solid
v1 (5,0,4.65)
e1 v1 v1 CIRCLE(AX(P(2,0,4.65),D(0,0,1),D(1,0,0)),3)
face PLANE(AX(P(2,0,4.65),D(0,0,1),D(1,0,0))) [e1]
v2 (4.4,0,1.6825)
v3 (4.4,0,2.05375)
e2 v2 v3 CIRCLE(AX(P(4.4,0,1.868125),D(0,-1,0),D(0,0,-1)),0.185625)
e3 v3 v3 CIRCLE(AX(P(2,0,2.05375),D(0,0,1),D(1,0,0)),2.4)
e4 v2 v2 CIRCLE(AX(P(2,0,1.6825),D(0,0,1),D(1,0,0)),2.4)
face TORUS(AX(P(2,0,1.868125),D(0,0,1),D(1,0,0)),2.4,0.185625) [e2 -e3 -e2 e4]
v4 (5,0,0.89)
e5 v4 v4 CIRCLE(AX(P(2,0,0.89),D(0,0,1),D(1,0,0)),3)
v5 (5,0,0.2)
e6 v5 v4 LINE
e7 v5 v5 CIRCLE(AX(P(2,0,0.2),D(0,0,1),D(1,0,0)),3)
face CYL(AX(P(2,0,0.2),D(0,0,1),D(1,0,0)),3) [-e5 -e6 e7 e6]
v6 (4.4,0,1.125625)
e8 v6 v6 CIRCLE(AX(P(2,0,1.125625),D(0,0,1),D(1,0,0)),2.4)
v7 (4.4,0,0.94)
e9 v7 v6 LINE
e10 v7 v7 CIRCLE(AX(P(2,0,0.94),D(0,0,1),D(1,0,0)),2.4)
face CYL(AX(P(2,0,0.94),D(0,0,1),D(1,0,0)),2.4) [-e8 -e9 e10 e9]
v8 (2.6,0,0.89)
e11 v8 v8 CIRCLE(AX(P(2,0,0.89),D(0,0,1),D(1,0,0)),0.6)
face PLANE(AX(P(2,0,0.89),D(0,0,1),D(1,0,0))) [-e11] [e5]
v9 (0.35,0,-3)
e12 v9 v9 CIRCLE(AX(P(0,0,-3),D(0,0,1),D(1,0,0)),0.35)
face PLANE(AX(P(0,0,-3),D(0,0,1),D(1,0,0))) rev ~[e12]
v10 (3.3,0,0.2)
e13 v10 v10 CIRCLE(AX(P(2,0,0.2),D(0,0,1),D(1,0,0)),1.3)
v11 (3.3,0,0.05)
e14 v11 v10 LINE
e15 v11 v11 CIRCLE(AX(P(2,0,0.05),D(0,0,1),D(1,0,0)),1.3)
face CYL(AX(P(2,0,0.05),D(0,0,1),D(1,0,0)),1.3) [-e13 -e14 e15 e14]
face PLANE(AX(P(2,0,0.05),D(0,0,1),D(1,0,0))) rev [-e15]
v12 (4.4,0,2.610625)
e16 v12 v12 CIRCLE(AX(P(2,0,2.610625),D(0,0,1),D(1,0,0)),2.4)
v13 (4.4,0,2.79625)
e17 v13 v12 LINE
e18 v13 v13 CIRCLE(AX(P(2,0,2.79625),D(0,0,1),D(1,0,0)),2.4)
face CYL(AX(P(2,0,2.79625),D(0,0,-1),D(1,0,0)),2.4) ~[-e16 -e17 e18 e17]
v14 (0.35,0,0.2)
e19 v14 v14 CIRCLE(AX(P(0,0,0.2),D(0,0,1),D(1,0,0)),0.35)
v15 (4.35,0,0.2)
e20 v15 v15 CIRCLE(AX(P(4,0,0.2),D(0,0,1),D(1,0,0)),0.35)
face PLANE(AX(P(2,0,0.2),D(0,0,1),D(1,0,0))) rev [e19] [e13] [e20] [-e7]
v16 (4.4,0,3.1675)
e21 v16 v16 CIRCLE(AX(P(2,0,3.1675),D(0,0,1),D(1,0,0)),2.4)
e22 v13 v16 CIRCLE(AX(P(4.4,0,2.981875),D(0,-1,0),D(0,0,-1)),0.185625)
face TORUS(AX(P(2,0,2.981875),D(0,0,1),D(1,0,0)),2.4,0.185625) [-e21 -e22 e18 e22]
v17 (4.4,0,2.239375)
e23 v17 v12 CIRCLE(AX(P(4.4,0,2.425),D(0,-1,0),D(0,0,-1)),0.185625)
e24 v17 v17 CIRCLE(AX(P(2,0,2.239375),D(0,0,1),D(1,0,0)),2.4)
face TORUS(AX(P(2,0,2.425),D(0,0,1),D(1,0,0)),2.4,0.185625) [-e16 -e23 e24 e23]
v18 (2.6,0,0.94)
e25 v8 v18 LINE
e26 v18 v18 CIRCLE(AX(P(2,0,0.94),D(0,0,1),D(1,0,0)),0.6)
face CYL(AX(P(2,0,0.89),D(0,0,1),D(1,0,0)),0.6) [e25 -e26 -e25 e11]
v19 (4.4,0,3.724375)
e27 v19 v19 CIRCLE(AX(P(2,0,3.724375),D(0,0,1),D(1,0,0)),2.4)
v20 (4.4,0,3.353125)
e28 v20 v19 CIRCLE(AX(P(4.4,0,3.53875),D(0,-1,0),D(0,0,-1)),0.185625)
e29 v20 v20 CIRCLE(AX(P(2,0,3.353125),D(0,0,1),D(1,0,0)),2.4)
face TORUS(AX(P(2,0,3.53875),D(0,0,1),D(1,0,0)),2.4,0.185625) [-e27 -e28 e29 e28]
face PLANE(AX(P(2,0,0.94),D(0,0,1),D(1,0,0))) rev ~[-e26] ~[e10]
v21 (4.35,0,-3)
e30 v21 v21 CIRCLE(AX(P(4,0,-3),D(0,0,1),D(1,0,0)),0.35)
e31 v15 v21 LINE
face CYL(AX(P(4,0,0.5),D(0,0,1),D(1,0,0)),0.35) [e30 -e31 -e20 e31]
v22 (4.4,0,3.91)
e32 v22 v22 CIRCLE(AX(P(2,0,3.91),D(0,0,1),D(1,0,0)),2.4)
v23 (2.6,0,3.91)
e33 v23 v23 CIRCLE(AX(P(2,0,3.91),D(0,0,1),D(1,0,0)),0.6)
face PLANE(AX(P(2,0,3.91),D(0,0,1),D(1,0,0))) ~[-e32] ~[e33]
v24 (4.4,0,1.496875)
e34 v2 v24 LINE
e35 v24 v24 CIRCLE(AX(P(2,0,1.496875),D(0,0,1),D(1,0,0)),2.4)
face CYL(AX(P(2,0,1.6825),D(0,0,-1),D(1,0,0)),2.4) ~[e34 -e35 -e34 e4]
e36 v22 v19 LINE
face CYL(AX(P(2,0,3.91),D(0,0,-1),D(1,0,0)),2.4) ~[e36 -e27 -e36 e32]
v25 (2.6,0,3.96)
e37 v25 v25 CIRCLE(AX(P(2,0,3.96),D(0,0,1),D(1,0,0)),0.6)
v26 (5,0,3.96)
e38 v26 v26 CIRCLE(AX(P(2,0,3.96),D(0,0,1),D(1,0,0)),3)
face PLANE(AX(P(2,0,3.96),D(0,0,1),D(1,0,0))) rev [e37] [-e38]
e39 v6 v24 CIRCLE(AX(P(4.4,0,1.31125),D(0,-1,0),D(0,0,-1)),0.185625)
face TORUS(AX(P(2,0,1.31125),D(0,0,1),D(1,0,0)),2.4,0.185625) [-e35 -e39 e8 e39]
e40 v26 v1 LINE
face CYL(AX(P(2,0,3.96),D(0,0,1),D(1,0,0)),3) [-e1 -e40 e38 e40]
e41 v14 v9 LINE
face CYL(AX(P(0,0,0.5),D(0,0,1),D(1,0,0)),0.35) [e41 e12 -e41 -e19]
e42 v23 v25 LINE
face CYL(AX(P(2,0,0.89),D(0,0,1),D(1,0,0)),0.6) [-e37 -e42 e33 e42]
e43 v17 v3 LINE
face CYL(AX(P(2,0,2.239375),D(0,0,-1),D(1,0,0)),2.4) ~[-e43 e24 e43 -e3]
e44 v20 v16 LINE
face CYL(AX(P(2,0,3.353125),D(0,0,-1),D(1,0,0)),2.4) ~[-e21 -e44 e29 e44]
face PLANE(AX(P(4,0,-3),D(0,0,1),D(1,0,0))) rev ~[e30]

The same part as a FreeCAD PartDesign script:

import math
import FreeCAD as App
import Part
import Sketcher
Q = App.Units.Quantity


def add_polygon(sketch, points):
    """Adds a closed chain of lines whose ends are joined by coincident constraints."""
    first, n = sketch.GeometryCount, len(points)
    for a, b in zip(points, points[1:] + points[:1]):
        sketch.addGeometry(Part.LineSegment(App.Vector(*a, 0), App.Vector(*b, 0)), False)
    for i in range(n):
        sketch.addConstraint(Sketcher.Constraint("Coincident", first + i, 2, first + (i + 1) % n, 1))

doc = App.newDocument("Part")
params = doc.addObject("Spreadsheet::Sheet", "Params")
for row, (alias, value) in enumerate([
    ("sketch1_width", "3 mm"),
    ("sketch1_width2", "1.3 mm"),
    ("sketch1_width3", "2.4 mm"),
    ("sketch1_height", "4.6 mm"),
    ("sketch1_height2", "0.15 mm"),
    ("revolution_angle", "360 deg"),
    ("sketch2_diameter", "0.7 mm"),
    ("pad1_length", "3.5 mm"),
    ("sketch3_width", "1.8 mm"),
    ("sketch3_height", "2.97 mm"),
    ("revolution2_angle", "360 deg"),
], start=1):
    params.set(f"A{row}", alias)
    params.set(f"B{row}", "=" + value)
    params.setAlias(f"B{row}", alias)

body = doc.addObject("PartDesign::Body", "Body")

sketch1 = body.newObject("Sketcher::SketchObject", "Sketch")
sketch1.AttachmentSupport = (doc.getObject("XZ_Plane"), [""])
sketch1.MapMode = "FlatFace"
add_polygon(sketch1, [(2, 0.05), (3.3, 0.05), (3.3, 0.2), (5, 0.2), (5, 0.89), (2.6, 0.89), (2.6, 3.96), (5, 3.96), (5, 4.65), (2, 4.65)])
sketch1.addGeometry(Part.LineSegment(App.Vector(2, 0.05, 0), App.Vector(2, 4.65, 0)), True)
sketch1.addConstraint([
    Sketcher.Constraint("Horizontal", 0),
    Sketcher.Constraint("Vertical", 1),
    Sketcher.Constraint("Horizontal", 2),
    Sketcher.Constraint("Vertical", 3),
    Sketcher.Constraint("Horizontal", 4),
    Sketcher.Constraint("Vertical", 5),
    Sketcher.Constraint("Horizontal", 6),
    Sketcher.Constraint("Vertical", 7),
    Sketcher.Constraint("Horizontal", 8),
    Sketcher.Constraint("Vertical", 9),
    Sketcher.Constraint("Vertical", 10),
    Sketcher.Constraint("Coincident", 10, 1, 9, 2),
    Sketcher.Constraint("Horizontal", 7, 2, 10, 2),
    Sketcher.Constraint("Vertical", 3, 2, 6, 2),
    Sketcher.Constraint("Equal", 3, 7),
    Sketcher.Constraint("DistanceX", 8, 2, 8, 1, Q("3 mm")),
    Sketcher.Constraint("DistanceX", 0, 1, 0, 2, Q("1.3 mm")),
    Sketcher.Constraint("DistanceX", 4, 2, 4, 1, Q("2.4 mm")),
    Sketcher.Constraint("DistanceY", 9, 2, 9, 1, Q("4.6 mm")),
    Sketcher.Constraint("DistanceX", -1, 1, 2, 2, Q("5 mm")),
    Sketcher.Constraint("DistanceY", 1, 1, 1, 2, Q("0.15 mm")),
    Sketcher.Constraint("DistanceY", 3, 1, 3, 2, Q("0.69 mm")),
    Sketcher.Constraint("DistanceY", -1, 1, 1, 2, Q("0.2 mm")),
])
sketch1.setExpression("Constraints[25]", "Params.sketch1_width")
sketch1.setExpression("Constraints[26]", "Params.sketch1_width2")
sketch1.setExpression("Constraints[27]", "Params.sketch1_width3")
sketch1.setExpression("Constraints[28]", "Params.sketch1_height")
sketch1.setExpression("Constraints[30]", "Params.sketch1_height2")
revolution = body.newObject("PartDesign::Revolution", "Revolution")
revolution.Profile = sketch1
revolution.ReferenceAxis = (sketch1, ["Axis0"])
revolution.setExpression("Angle", "Params.revolution_angle")
body2 = doc.addObject("PartDesign::Body", "Body001")
body2.AllowCompound = True

sketch2 = body2.newObject("Sketcher::SketchObject", "Sketch001")
sketch2.AttachmentSupport = (doc.getObject("XY_Plane001"), [""])
sketch2.MapMode = "FlatFace"
sketch2.AttachmentOffset = App.Placement(App.Vector(0, 0, 0.5), App.Rotation())
sketch2.addGeometry([
    Part.Circle(App.Vector(0, 0, 0), App.Vector(0, 0, 1), 0.35),
    Part.Circle(App.Vector(4, 0, 0), App.Vector(0, 0, 1), 0.35),
], False)
sketch2.addConstraint([
    Sketcher.Constraint("Coincident", 0, 3, -1, 1),
    Sketcher.Constraint("Equal", 0, 1),
    Sketcher.Constraint("PointOnObject", 1, 3, -1),
    Sketcher.Constraint("Diameter", 0, Q("0.7 mm")),
    Sketcher.Constraint("DistanceX", -1, 1, 1, 3, Q("4 mm")),
])
sketch2.setExpression("Constraints[3]", "Params.sketch2_diameter")
pad1 = body2.newObject("PartDesign::Pad", "Pad")
pad1.Profile = sketch2
pad1.setExpression("Length", "Params.pad1_length")
pad1.Reversed = True
body3 = doc.addObject("PartDesign::Body", "Body002")

sketch3 = body3.newObject("Sketcher::SketchObject", "Sketch002")
sketch3.AttachmentSupport = (doc.getObject("XZ_Plane002"), [""])
sketch3.MapMode = "FlatFace"
sketch3.addGeometry([
    Part.LineSegment(App.Vector(2.6, 0.94, 0), App.Vector(4.4, 0.94, 0)),
    Part.LineSegment(App.Vector(4.4, 0.94, 0), App.Vector(4.4, 1.13, 0)),
    Part.ArcOfCircle(Part.Circle(App.Vector(4.4, 1.31, 0), App.Vector(0, 0, 1), 0.19), math.radians(-90), math.radians(90)),
    Part.LineSegment(App.Vector(4.4, 1.5, 0), App.Vector(4.4, 1.68, 0)),
    Part.ArcOfCircle(Part.Circle(App.Vector(4.4, 1.87, 0), App.Vector(0, 0, 1), 0.19), math.radians(-90), math.radians(90)),
    Part.LineSegment(App.Vector(4.4, 2.05, 0), App.Vector(4.4, 2.24, 0)),
    Part.ArcOfCircle(Part.Circle(App.Vector(4.4, 2.42, 0), App.Vector(0, 0, 1), 0.19), math.radians(-90), math.radians(90)),
    Part.LineSegment(App.Vector(4.4, 2.61, 0), App.Vector(4.4, 2.8, 0)),
    Part.ArcOfCircle(Part.Circle(App.Vector(4.4, 2.98, 0), App.Vector(0, 0, 1), 0.19), math.radians(-90), math.radians(90)),
    Part.LineSegment(App.Vector(4.4, 3.17, 0), App.Vector(4.4, 3.35, 0)),
    Part.ArcOfCircle(Part.Circle(App.Vector(4.4, 3.54, 0), App.Vector(0, 0, 1), 0.19), math.radians(-90), math.radians(90)),
    Part.LineSegment(App.Vector(4.4, 3.72, 0), App.Vector(4.4, 3.91, 0)),
    Part.LineSegment(App.Vector(4.4, 3.91, 0), App.Vector(2.6, 3.91, 0)),
    Part.LineSegment(App.Vector(2.6, 3.91, 0), App.Vector(2.6, 0.94, 0)),
], False)
sketch3.addGeometry(Part.LineSegment(App.Vector(2, 0.94, 0), App.Vector(2, 3.91, 0)), True)
sketch3.addConstraint([
    Sketcher.Constraint("Coincident", 0, 2, 1, 1),
    Sketcher.Constraint("Coincident", 1, 2, 2, 1),
    Sketcher.Constraint("Coincident", 2, 2, 3, 1),
    Sketcher.Constraint("Coincident", 3, 2, 4, 1),
    Sketcher.Constraint("Coincident", 4, 2, 5, 1),
    Sketcher.Constraint("Coincident", 5, 2, 6, 1),
    Sketcher.Constraint("Coincident", 6, 2, 7, 1),
    Sketcher.Constraint("Coincident", 7, 2, 8, 1),
    Sketcher.Constraint("Coincident", 8, 2, 9, 1),
    Sketcher.Constraint("Coincident", 9, 2, 10, 1),
    Sketcher.Constraint("Coincident", 10, 2, 11, 1),
    Sketcher.Constraint("Coincident", 11, 2, 12, 1),
    Sketcher.Constraint("Coincident", 12, 2, 13, 1),
    Sketcher.Constraint("Coincident", 13, 2, 0, 1),
    Sketcher.Constraint("Horizontal", 0),
    Sketcher.Constraint("Vertical", 1),
    Sketcher.Constraint("Vertical", 3),
    Sketcher.Constraint("Vertical", 5),
    Sketcher.Constraint("Vertical", 7),
    Sketcher.Constraint("Vertical", 9),
    Sketcher.Constraint("Vertical", 11),
    Sketcher.Constraint("Horizontal", 12),
    Sketcher.Constraint("Vertical", 13),
    Sketcher.Constraint("Vertical", 14),
    Sketcher.Constraint("Equal", 2, 4),
    Sketcher.Constraint("Equal", 4, 6),
    Sketcher.Constraint("Equal", 6, 8),
    Sketcher.Constraint("Equal", 8, 10),
    Sketcher.Constraint("Horizontal", 13, 2, 14, 1),
    Sketcher.Constraint("Horizontal", 12, 2, 14, 2),
    Sketcher.Constraint("Vertical", 2, 3, 4, 3),
    Sketcher.Constraint("Vertical", 4, 3, 6, 3),
    Sketcher.Constraint("Vertical", 6, 3, 8, 3),
    Sketcher.Constraint("Vertical", 8, 3, 10, 3),
    Sketcher.Constraint("Vertical", 10, 3, 0, 2),
    Sketcher.Constraint("Vertical", 1, 2, 2, 2),
    Sketcher.Constraint("Vertical", 3, 2, 4, 2),
    Sketcher.Constraint("Vertical", 5, 2, 6, 2),
    Sketcher.Constraint("Vertical", 7, 2, 8, 2),
    Sketcher.Constraint("Vertical", 9, 2, 10, 2),
    Sketcher.Constraint("Equal", 1, 3),
    Sketcher.Constraint("Equal", 3, 5),
    Sketcher.Constraint("Equal", 5, 7),
    Sketcher.Constraint("Equal", 7, 9),
    Sketcher.Constraint("Equal", 9, 11),
    Sketcher.Constraint("DistanceX", 0, 1, 0, 2, Q("1.8 mm")),
    Sketcher.Constraint("DistanceX", -1, 1, 14, 1, Q("2 mm")),
    Sketcher.Constraint("DistanceY", 13, 2, 13, 1, Q("2.97 mm")),
    Sketcher.Constraint("DistanceX", -1, 1, 2, 3, Q("4.4 mm")),
    Sketcher.Constraint("DistanceY", -1, 1, 0, 2, Q("0.94 mm")),
    Sketcher.Constraint("Radius", 2, Q("0.185625 mm")),
])
sketch3.setExpression("Constraints[45]", "Params.sketch3_width")
sketch3.setExpression("Constraints[47]", "Params.sketch3_height")
revolution2 = body3.newObject("PartDesign::Revolution", "Revolution001")
revolution2.Profile = sketch3
revolution2.ReferenceAxis = (sketch3, ["Axis0"])
revolution2.setExpression("Angle", "Params.revolution2_angle")
doc.recompute()

boolean = body3.newObject("PartDesign::Boolean", "Boolean")
boolean.Type = "Fuse"
boolean.addObjects([body])
doc.recompute()

boolean2 = body3.newObject("PartDesign::Boolean", "Boolean001")
boolean2.Type = "Fuse"
boolean2.addObjects([body2])

doc.recompute()
